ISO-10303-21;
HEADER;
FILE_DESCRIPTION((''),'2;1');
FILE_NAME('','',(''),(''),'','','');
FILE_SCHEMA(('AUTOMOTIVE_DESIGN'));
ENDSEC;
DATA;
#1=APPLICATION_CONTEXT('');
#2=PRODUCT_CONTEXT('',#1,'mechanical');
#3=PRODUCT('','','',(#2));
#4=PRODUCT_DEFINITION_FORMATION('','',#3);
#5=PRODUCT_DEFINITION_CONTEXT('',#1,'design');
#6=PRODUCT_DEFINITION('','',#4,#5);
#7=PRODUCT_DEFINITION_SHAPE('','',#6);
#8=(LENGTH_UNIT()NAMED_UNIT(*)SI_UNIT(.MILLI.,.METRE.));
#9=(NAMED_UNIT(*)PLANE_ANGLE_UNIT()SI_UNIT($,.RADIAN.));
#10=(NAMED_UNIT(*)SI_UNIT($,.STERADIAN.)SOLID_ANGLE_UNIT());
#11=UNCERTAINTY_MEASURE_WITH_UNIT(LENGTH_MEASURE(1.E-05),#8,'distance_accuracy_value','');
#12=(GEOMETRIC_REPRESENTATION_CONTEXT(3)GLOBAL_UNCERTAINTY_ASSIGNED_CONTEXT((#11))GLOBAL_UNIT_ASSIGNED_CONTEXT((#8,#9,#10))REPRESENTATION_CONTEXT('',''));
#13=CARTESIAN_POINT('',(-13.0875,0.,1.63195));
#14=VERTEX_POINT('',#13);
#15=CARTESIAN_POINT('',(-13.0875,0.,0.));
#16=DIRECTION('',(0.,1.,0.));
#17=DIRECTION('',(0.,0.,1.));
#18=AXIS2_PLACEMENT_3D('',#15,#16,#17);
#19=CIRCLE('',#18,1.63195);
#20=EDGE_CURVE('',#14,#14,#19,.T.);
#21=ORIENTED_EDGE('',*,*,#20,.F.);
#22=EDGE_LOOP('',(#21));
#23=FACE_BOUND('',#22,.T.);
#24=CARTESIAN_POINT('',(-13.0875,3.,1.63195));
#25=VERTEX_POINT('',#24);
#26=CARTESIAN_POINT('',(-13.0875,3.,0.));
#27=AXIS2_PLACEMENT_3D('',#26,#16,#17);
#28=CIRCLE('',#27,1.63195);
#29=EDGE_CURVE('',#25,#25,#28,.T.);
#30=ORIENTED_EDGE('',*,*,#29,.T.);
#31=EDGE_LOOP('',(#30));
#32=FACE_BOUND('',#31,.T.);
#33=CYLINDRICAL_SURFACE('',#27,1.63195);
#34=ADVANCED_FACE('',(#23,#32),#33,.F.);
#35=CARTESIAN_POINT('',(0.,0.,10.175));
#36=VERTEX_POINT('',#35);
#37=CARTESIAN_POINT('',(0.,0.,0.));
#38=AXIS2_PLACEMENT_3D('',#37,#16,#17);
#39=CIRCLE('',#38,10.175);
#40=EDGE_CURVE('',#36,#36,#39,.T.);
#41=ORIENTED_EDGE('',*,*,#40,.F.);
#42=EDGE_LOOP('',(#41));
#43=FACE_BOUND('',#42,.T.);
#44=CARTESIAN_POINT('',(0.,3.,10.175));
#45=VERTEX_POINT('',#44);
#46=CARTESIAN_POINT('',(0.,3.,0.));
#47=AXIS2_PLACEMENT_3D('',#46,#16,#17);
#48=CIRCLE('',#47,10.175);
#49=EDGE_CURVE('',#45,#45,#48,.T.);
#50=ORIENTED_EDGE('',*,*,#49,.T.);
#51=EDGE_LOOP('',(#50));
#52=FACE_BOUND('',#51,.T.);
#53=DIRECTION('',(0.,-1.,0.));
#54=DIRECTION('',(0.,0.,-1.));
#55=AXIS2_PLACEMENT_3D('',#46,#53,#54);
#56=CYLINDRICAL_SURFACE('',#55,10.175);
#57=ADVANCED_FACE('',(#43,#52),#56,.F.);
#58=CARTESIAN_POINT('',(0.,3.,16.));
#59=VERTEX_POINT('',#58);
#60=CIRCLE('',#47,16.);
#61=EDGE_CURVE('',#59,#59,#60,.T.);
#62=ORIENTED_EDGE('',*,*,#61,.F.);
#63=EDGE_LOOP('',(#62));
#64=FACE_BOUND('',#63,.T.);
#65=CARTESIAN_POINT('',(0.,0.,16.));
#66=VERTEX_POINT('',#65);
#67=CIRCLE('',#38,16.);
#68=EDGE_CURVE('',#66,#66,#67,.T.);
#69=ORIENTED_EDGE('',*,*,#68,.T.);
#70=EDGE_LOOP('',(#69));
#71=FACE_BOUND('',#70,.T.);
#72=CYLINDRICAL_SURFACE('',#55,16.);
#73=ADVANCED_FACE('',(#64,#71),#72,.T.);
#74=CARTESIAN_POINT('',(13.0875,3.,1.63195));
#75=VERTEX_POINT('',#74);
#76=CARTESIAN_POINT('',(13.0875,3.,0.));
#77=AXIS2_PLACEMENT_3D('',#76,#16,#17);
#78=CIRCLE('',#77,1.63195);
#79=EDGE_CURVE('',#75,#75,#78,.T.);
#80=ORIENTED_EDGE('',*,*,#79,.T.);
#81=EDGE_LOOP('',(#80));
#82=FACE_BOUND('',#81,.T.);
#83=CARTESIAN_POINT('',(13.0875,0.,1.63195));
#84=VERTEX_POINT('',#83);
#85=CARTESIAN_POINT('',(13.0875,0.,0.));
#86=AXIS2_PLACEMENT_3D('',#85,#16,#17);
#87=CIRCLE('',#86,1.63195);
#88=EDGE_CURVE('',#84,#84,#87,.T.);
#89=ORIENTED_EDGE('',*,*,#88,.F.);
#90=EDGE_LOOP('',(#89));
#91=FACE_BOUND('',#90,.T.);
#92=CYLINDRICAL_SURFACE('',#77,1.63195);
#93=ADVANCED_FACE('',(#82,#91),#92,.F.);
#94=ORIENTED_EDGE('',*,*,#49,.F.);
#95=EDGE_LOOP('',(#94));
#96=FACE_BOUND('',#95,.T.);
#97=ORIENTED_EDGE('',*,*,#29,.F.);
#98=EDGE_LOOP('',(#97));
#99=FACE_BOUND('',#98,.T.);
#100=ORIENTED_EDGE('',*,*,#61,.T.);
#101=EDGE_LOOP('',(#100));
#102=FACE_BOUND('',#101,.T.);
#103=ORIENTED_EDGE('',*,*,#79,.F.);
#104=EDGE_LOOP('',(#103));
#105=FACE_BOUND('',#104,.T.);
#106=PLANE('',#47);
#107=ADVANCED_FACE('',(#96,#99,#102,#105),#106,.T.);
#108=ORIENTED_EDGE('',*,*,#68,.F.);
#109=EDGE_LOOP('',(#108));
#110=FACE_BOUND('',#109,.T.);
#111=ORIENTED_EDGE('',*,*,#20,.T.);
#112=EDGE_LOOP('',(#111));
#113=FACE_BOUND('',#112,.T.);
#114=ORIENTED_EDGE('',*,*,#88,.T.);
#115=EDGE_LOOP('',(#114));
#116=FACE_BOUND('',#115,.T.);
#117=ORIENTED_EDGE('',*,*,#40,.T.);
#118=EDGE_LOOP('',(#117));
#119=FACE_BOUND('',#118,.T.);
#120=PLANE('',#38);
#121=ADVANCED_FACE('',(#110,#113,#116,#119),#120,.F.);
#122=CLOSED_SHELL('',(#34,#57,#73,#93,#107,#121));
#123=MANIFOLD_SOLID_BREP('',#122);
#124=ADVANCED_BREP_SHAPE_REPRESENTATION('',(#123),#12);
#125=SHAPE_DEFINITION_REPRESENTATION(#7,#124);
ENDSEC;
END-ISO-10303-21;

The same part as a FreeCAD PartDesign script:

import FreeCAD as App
import Part
import Sketcher
Q = App.Units.Quantity

doc = App.newDocument("Part")
body = doc.addObject("PartDesign::Body", "Body")

# Sketch on XZ plane
sketch1 = body.newObject("Sketcher::SketchObject", "Sketch")
sketch1.AttachmentSupport = (doc.getObject("XZ_Plane"), [""])
sketch1.MapMode = "FlatFace"
sketch1.addGeometry([
    Part.Circle(App.Vector(0, 0, 0), App.Vector(0, 0, 1), 16),
    Part.Circle(App.Vector(0, 0, 0), App.Vector(0, 0, 1), 10),
], False)
sketch1.addConstraint([
    Sketcher.Constraint("Coincident", 0, 3, -1, 1),
    Sketcher.Constraint("Coincident", 1, 3, -1, 1),
    Sketcher.Constraint("Diameter", 0, Q("32 mm")),
    Sketcher.Constraint("Diameter", 1, Q("20.35 mm")),
])
pad1 = body.newObject("PartDesign::Pad", "Pad")
pad1.Profile = sketch1
pad1.Length = 3
pad1.Reversed = True

# Sketch on XZ plane
sketch2 = body.newObject("Sketcher::SketchObject", "Sketch001")
sketch2.AttachmentSupport = (doc.getObject("XZ_Plane"), [""])
sketch2.MapMode = "FlatFace"
sketch2.AttachmentOffset = App.Placement(App.Vector(0, 0, -3), App.Rotation())
sketch2.addGeometry([
    Part.Circle(App.Vector(-13.1, 0, 0), App.Vector(0, 0, 1), 1.6),
    Part.Circle(App.Vector(13.1, 0, 0), App.Vector(0, 0, 1), 1.6),
], False)
sketch2.addConstraint([
    Sketcher.Constraint("Equal", 0, 1),
    Sketcher.Constraint("Symmetric", 0, 3, 1, 3, -1, 1),
    Sketcher.Constraint("PointOnObject", 0, 3, -1),
    Sketcher.Constraint("Diameter", 0, Q("3.2639 mm")),
    Sketcher.Constraint("DistanceX", 0, 3, 1, 3, Q("26.175 mm")),
])
doc.recompute()
hole = body.newObject("PartDesign::Hole", "Hole")
hole.Profile = sketch2
hole.ThreadType = "None"
hole.Diameter = 3.2639
hole.DepthType = "ThroughAll"
hole.Reversed = True

doc.recompute()
